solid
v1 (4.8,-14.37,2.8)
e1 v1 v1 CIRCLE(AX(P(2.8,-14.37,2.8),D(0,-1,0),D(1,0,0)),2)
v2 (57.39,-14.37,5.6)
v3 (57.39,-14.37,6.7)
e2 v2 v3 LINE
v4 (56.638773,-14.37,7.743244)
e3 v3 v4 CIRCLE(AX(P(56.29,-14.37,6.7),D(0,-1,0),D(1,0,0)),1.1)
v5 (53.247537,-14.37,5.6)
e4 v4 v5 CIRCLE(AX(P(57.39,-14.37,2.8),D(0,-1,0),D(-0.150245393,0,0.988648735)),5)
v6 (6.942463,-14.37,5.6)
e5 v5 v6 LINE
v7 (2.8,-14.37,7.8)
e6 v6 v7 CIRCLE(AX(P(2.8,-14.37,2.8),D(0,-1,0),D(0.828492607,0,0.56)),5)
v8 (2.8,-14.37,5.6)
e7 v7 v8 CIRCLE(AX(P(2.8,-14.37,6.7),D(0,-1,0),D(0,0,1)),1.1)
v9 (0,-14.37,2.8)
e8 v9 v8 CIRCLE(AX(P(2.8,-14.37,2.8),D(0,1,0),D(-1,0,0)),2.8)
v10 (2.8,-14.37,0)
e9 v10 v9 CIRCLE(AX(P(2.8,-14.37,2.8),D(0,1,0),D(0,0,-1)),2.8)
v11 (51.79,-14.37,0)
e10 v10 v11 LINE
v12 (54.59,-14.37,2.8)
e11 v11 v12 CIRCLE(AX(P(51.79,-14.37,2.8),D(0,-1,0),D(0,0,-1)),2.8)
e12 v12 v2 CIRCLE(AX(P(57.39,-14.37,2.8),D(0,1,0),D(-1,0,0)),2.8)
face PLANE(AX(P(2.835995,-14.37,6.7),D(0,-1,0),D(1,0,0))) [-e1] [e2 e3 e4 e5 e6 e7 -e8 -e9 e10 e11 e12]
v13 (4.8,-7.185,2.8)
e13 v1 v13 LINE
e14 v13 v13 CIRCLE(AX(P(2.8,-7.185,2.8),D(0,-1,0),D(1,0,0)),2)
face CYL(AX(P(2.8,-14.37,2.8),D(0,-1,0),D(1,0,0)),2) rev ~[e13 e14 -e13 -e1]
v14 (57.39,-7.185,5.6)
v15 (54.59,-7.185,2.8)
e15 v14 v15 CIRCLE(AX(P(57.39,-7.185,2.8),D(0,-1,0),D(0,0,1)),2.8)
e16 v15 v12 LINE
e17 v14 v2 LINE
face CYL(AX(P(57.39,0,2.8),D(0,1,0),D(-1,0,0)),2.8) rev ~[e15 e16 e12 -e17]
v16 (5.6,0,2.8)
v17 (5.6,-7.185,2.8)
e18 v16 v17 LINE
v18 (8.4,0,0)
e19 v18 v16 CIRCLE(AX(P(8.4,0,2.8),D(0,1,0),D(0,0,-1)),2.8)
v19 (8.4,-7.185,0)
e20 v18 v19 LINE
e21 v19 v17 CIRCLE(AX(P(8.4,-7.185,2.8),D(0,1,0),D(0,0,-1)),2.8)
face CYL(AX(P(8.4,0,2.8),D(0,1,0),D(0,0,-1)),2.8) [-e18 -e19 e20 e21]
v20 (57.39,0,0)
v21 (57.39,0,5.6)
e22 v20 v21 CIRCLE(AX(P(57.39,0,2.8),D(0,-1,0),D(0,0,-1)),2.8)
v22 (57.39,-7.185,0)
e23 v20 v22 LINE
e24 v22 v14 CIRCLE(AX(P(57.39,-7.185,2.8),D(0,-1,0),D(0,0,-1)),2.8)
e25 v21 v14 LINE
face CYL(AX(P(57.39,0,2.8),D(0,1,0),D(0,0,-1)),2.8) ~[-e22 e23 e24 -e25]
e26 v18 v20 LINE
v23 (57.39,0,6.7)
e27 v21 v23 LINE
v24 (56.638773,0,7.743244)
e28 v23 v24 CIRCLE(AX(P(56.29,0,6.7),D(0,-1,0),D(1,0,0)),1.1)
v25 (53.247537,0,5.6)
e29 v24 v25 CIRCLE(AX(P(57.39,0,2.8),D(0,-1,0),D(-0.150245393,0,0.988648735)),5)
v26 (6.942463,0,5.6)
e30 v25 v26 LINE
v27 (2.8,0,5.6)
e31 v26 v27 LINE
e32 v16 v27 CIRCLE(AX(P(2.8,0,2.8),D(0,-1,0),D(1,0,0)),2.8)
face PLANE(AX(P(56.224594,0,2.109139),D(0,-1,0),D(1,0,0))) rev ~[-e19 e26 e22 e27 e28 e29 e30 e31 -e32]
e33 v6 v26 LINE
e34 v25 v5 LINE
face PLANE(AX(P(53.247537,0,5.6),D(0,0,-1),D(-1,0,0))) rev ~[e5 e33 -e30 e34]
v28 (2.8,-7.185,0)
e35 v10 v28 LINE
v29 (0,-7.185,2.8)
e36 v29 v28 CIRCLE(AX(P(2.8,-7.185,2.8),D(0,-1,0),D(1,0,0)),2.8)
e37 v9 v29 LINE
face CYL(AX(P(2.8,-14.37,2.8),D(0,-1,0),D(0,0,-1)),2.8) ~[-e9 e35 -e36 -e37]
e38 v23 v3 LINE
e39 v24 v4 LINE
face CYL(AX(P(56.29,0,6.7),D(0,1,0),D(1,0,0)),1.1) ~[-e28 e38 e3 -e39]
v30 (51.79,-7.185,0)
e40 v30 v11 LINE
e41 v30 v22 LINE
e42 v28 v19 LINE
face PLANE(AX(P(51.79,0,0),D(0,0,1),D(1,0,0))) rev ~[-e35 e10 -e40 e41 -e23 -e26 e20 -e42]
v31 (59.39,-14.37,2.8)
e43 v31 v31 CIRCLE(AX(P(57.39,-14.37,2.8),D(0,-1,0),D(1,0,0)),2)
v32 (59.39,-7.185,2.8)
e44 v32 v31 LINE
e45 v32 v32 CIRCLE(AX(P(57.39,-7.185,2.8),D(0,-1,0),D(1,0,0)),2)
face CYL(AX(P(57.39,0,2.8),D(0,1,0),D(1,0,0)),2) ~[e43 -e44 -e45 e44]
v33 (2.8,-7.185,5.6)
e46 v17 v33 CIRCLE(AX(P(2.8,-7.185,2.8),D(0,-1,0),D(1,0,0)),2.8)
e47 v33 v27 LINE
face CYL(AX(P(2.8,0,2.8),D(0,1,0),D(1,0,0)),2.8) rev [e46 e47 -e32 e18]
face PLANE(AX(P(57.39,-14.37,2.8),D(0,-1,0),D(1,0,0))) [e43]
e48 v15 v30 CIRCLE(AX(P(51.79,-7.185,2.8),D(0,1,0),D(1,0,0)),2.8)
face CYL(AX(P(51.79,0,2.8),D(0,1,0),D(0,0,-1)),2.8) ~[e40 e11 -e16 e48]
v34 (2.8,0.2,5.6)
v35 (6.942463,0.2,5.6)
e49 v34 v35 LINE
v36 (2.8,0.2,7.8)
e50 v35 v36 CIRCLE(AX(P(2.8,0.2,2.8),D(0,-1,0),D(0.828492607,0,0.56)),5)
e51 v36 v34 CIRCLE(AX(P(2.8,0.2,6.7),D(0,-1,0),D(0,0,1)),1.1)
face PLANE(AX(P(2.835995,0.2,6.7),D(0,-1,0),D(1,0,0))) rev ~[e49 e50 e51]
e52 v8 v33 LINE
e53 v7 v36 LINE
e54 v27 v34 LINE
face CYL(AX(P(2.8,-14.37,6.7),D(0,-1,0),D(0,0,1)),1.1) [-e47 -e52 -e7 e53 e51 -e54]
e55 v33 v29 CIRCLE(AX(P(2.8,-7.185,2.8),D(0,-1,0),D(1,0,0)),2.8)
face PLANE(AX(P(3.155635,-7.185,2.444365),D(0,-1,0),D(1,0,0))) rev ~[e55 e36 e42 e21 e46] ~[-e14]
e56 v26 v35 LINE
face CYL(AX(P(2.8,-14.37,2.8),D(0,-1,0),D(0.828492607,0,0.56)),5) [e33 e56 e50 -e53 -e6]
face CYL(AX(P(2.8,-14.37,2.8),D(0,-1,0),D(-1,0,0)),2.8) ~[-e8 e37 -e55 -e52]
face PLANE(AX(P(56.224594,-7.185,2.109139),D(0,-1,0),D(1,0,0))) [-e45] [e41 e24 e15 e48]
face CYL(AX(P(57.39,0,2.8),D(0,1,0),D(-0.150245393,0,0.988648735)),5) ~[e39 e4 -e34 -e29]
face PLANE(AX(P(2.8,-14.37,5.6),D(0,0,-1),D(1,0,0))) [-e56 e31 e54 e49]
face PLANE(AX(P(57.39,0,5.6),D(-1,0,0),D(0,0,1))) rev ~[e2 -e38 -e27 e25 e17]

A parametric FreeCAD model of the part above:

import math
import FreeCAD as App
import Part
import Sketcher

V = App.Vector
Q = App.Units.Quantity

doc = App.newDocument("Part")
params = doc.addObject("Spreadsheet::Sheet", "Params")
for row, (alias, value) in enumerate([
    ("sketch1_radius", "5 mm"),
    ("sketch1_radius2", "2.8 mm"),
    ("sketch1_radius3", "1.1 mm"),
    ("sketch1_height", "1.1 mm"),
    ("sketch1_width", "51.79 mm"),
    ("pad1_length", "14.37 mm"),
    ("sketch2_diameter", "4 mm"),
    ("pad2_length", "14.37 mm"),
    ("sketch3_diameter", "4 mm"),
    ("sketch3_radius", "2.8 mm"),
    ("pad3_length", "7.185 mm"),
    ("sketch4_radius", "5 mm"),
    ("sketch4_radius2", "1.1 mm"),
    ("pad4_length", "14.57 mm"),
    ("sketch5_diameter", "4 mm"),
    ("sketch5_radius", "2.8 mm"),
    ("pocket1_length", "14.37 mm"),
    ("sketch6_radius", "2.8 mm"),
    ("pocket2_length", "7.185 mm"),
], start=1):
    params.set(f"A{row}", alias)
    params.set(f"B{row}", "=" + value)
    params.setAlias(f"B{row}", alias)

body = doc.addObject("PartDesign::Body", "Body")

# Sketch on XZ plane
sketch1 = body.newObject("Sketcher::SketchObject", "Sketch")
sketch1.AttachmentSupport = (doc.getObject("XZ_Plane"), [""])
sketch1.MapMode = "FlatFace"
sketch1.addGeometry([
    Part.LineSegment(V(0, 5.6, 0), V(0, 0, 0)),  # 0
    Part.LineSegment(V(0, 0, 0), V(51.8, 0, 0)),  # 1
    Part.ArcOfCircle(Part.Circle(V(51.8, 2.8, 0), V(0, 0, 1), 2.8), math.radians(-90), math.radians(0)),  # 2
    Part.ArcOfCircle(Part.Circle(V(57.4, 2.8, 0), V(0, 0, 1), 2.8), math.radians(90), math.radians(180)),  # 3
    Part.LineSegment(V(57.4, 5.6, 0), V(57.4, 6.7, 0)),  # 4
    Part.ArcOfCircle(Part.Circle(V(56.3, 6.7, 0), V(0, 0, 1), 1.1), math.radians(0), math.radians(72)),  # 5
    Part.ArcOfCircle(Part.Circle(V(57.4, 2.8, 0), V(0, 0, 1), 5), math.radians(99), math.radians(146)),  # 6
    Part.LineSegment(V(53.2, 5.6, 0), V(0, 5.6, 0)),  # 7
], False)
sketch1.addConstraint([
    Sketcher.Constraint("Coincident", 0, 2, 1, 1),
    Sketcher.Constraint("Tangent", 1, 2, 2, 1),
    Sketcher.Constraint("Tangent", 2, 2, 3, 2),
    Sketcher.Constraint("Coincident", 3, 1, 4, 1),
    Sketcher.Constraint("Tangent", 4, 2, 5, 1),
    Sketcher.Constraint("Coincident", 5, 2, 6, 1),
    Sketcher.Constraint("Coincident", 6, 2, 7, 1),
    Sketcher.Constraint("Coincident", 7, 2, 0, 1),
    Sketcher.Constraint("Vertical", 0),
    Sketcher.Constraint("Horizontal", 1),
    Sketcher.Constraint("Vertical", 4),
    Sketcher.Constraint("Horizontal", 7),
    Sketcher.Constraint("Coincident", 0, 2, -1, 1),
    Sketcher.Constraint("Coincident", 6, 3, 3, 3),
    Sketcher.Constraint("Equal", 2, 3),
    Sketcher.Constraint("Horizontal", 2, 3, 3, 3),
    Sketcher.Constraint("Horizontal", 3, 1, 6, 2),
    Sketcher.Constraint("Vertical", 6, 3, 3, 1),
    Sketcher.Constraint("Radius", 6, Q("5 mm")),
    Sketcher.Constraint("Radius", 2, Q("2.8 mm")),
    Sketcher.Constraint("Radius", 5, Q("1.1 mm")),
    Sketcher.Constraint("DistanceY", 4, 1, 4, 2, Q("1.1 mm")),
    Sketcher.Constraint("DistanceX", 1, 1, 1, 2, Q("51.79 mm")),
])
sketch1.setExpression("Constraints[18]", "Params.sketch1_radius")
sketch1.setExpression("Constraints[19]", "Params.sketch1_radius2")
sketch1.setExpression("Constraints[20]", "Params.sketch1_radius3")
sketch1.setExpression("Constraints[21]", "Params.sketch1_height")
sketch1.setExpression("Constraints[22]", "Params.sketch1_width")
pad1 = body.newObject("PartDesign::Pad", "Pad")
pad1.Profile = sketch1
pad1.setExpression("Length", "Params.pad1_length")
body2 = doc.addObject("PartDesign::Body", "Body001")

# Sketch on XZ plane
sketch2 = body2.newObject("Sketcher::SketchObject", "Sketch001")
sketch2.AttachmentSupport = (doc.getObject("XZ_Plane001"), [""])
sketch2.MapMode = "FlatFace"
sketch2.addGeometry(Part.Circle(V(57.4, 2.8, 0), V(0, 0, 1), 2), False)
sketch2.addConstraint([
    Sketcher.Constraint("Diameter", 0, Q("4 mm")),
    Sketcher.Constraint("DistanceY", -1, 1, 0, 3, Q("2.8 mm")),
    Sketcher.Constraint("DistanceX", -1, 1, 0, 3, Q("57.39 mm")),
])
sketch2.setExpression("Constraints[0]", "Params.sketch2_diameter")
pad2 = body2.newObject("PartDesign::Pad", "Pad001")
pad2.Profile = sketch2
pad2.setExpression("Length", "Params.pad2_length")
body.AllowCompound = True
doc.recompute()

boolean = body.newObject("PartDesign::Boolean", "Boolean")
boolean.Type = "Fuse"
boolean.addObjects([body2])

# Sketch on XZ plane
sketch3 = body.newObject("Sketcher::SketchObject", "Sketch002")
sketch3.AttachmentSupport = (doc.getObject("XZ_Plane"), [""])
sketch3.MapMode = "FlatFace"
sketch3.addGeometry([
    Part.ArcOfCircle(Part.Circle(V(51.8, 2.8, 0), V(0, 0, 1), 2.8), math.radians(-90), math.radians(0)),  # 0
    Part.LineSegment(V(51.8, 0, 0), V(57.4, 0, 0)),  # 1
    Part.ArcOfCircle(Part.Circle(V(57.4, 2.8, 0), V(0, 0, 1), 2.8), math.radians(-90), math.radians(90)),  # 2
    Part.ArcOfCircle(Part.Circle(V(57.4, 2.8, 0), V(0, 0, 1), 2.8), math.radians(90), math.radians(180)),  # 3
    Part.Circle(V(57.4, 2.8, 0), V(0, 0, 1), 2),  # 4
], False)
sketch3.addConstraint([
    Sketcher.Constraint("Tangent", 0, 1, 1, 1),
    Sketcher.Constraint("Tangent", 1, 2, 2, 1),
    Sketcher.Constraint("Tangent", 2, 2, 3, 1),
    Sketcher.Constraint("Tangent", 3, 2, 0, 2),
    Sketcher.Constraint("Horizontal", 1),
    Sketcher.Constraint("Coincident", 4, 3, 2, 3),
    Sketcher.Constraint("Equal", 0, 2),
    Sketcher.Constraint("Equal", 2, 3),
    Sketcher.Constraint("PointOnObject", 0, 1, -1),
    Sketcher.Constraint("Vertical", 1, 2, 2, 2),
    Sketcher.Constraint("Diameter", 4, Q("4 mm")),
    Sketcher.Constraint("Radius", 0, Q("2.8 mm")),
    Sketcher.Constraint("DistanceX", -1, 1, 0, 3, Q("51.79 mm")),
])
sketch3.setExpression("Constraints[10]", "Params.sketch3_diameter")
sketch3.setExpression("Constraints[11]", "Params.sketch3_radius")
pad3 = body.newObject("PartDesign::Pad", "Pad002")
pad3.Profile = sketch3
pad3.setExpression("Length", "Params.pad3_length")

# Sketch on XZ plane
sketch4 = body.newObject("Sketcher::SketchObject", "Sketch003")
sketch4.AttachmentSupport = (doc.getObject("XZ_Plane"), [""])
sketch4.MapMode = "FlatFace"
sketch4.AttachmentOffset = App.Placement(V(0, 0, 14.37), App.Rotation())
sketch4.addGeometry([
    Part.ArcOfCircle(Part.Circle(V(2.8, 6.7, 0), V(0, 0, 1), 1.1), math.radians(90), math.radians(270)),
    Part.LineSegment(V(2.8, 5.6, 0), V(6.9, 5.6, 0)),
    Part.ArcOfCircle(Part.Circle(V(2.8, 2.8, 0), V(0, 0, 1), 5), math.radians(34), math.radians(90)),
], False)
sketch4.addConstraint([
    Sketcher.Constraint("Tangent", 0, 2, 1, 1),
    Sketcher.Constraint("Coincident", 1, 2, 2, 1),
    Sketcher.Constraint("Tangent", 2, 2, 0, 1),
    Sketcher.Constraint("Horizontal", 1),
    Sketcher.Constraint("Vertical", 0, 3, 2, 3),
    Sketcher.Constraint("Radius", 2, Q("5 mm")),
    Sketcher.Constraint("Radius", 0, Q("1.1 mm")),
    Sketcher.Constraint("DistanceX", -1, 1, 0, 3, Q("2.8 mm")),
    Sketcher.Constraint("DistanceY", -1, 1, 0, 3, Q("6.7 mm")),
])
sketch4.setExpression("Constraints[5]", "Params.sketch4_radius")
sketch4.setExpression("Constraints[6]", "Params.sketch4_radius2")
pad4 = body.newObject("PartDesign::Pad", "Pad003")
pad4.Profile = sketch4
pad4.setExpression("Length", "Params.pad4_length")
pad4.Reversed = True

# Sketch on XZ plane
sketch5 = body.newObject("Sketcher::SketchObject", "Sketch004")
sketch5.AttachmentSupport = (doc.getObject("XZ_Plane"), [""])
sketch5.MapMode = "FlatFace"
sketch5.AttachmentOffset = App.Placement(V(0, 0, 14.37), App.Rotation())
sketch5.addGeometry([
    Part.ArcOfCircle(Part.Circle(V(2.8, 2.8, 0), V(0, 0, 1), 2.8), math.radians(90), math.radians(180)),  # 0
    Part.LineSegment(V(2.8, 5.6, 0), V(0, 5.6, 0)),  # 1
    Part.LineSegment(V(0, 5.6, 0), V(0, 2.8, 0)),  # 2
    Part.LineSegment(V(0, 0, 0), V(2.8, 0, 0)),  # 3
    Part.ArcOfCircle(Part.Circle(V(2.8, 2.8, 0), V(0, 0, 1), 2.8), math.radians(180), math.radians(270)),  # 4
    Part.LineSegment(V(0, 2.8, 0), V(0, 0, 0)),  # 5
    Part.Circle(V(2.8, 2.8, 0), V(0, 0, 1), 2),  # 6
], False)
sketch5.addConstraint([
    Sketcher.Constraint("Tangent", 0, 1, 1, 1),
    Sketcher.Constraint("Coincident", 1, 2, 2, 1),
    Sketcher.Constraint("Tangent", 2, 2, 0, 2),
    Sketcher.Constraint("Tangent", 3, 2, 4, 2),
    Sketcher.Constraint("Tangent", 4, 1, 5, 1),
    Sketcher.Constraint("Coincident", 5, 2, 3, 1),
    Sketcher.Constraint("Horizontal", 1),
    Sketcher.Constraint("Vertical", 2),
    Sketcher.Constraint("Horizontal", 3),
    Sketcher.Constraint("Vertical", 5),
    Sketcher.Constraint("Coincident", 5, 2, -1, 1),
    Sketcher.Constraint("Coincident", 4, 3, 0, 3),
    Sketcher.Constraint("Coincident", 6, 3, 0, 3),
    Sketcher.Constraint("Equal", 0, 4),
    Sketcher.Constraint("Diameter", 6, Q("4 mm")),
    Sketcher.Constraint("Radius", 0, Q("2.8 mm")),
])
sketch5.setExpression("Constraints[14]", "Params.sketch5_diameter")
sketch5.setExpression("Constraints[15]", "Params.sketch5_radius")
pocket1 = body.newObject("PartDesign::Pocket", "Pocket")
pocket1.Profile = sketch5
pocket1.setExpression("Length", "Params.pocket1_length")

# Sketch on XZ plane
sketch6 = body.newObject("Sketcher::SketchObject", "Sketch005")
sketch6.AttachmentSupport = (doc.getObject("XZ_Plane"), [""])
sketch6.MapMode = "FlatFace"
sketch6.addGeometry([
    Part.ArcOfCircle(Part.Circle(V(2.8, 2.8, 0), V(0, 0, 1), 2.8), math.radians(0), math.radians(270)),
    Part.LineSegment(V(2.8, 0, 0), V(8.4, 0, 0)),
    Part.ArcOfCircle(Part.Circle(V(8.4, 2.8, 0), V(0, 0, 1), 2.8), math.radians(180), math.radians(270)),
], False)
sketch6.addConstraint([
    Sketcher.Constraint("Tangent", 0, 2, 1, 1),
    Sketcher.Constraint("Tangent", 1, 2, 2, 2),
    Sketcher.Constraint("Tangent", 2, 1, 0, 1),
    Sketcher.Constraint("Horizontal", 1),
    Sketcher.Constraint("Equal", 0, 2),
    Sketcher.Constraint("PointOnObject", 0, 2, -1),
    Sketcher.Constraint("Radius", 0, Q("2.8 mm")),
    Sketcher.Constraint("DistanceX", -1, 1, 0, 3, Q("2.8 mm")),
])
sketch6.setExpression("Constraints[6]", "Params.sketch6_radius")
pocket2 = body.newObject("PartDesign::Pocket", "Pocket001")
pocket2.Profile = sketch6
pocket2.setExpression("Length", "Params.pocket2_length")
pocket2.Reversed = True

doc.recompute()
